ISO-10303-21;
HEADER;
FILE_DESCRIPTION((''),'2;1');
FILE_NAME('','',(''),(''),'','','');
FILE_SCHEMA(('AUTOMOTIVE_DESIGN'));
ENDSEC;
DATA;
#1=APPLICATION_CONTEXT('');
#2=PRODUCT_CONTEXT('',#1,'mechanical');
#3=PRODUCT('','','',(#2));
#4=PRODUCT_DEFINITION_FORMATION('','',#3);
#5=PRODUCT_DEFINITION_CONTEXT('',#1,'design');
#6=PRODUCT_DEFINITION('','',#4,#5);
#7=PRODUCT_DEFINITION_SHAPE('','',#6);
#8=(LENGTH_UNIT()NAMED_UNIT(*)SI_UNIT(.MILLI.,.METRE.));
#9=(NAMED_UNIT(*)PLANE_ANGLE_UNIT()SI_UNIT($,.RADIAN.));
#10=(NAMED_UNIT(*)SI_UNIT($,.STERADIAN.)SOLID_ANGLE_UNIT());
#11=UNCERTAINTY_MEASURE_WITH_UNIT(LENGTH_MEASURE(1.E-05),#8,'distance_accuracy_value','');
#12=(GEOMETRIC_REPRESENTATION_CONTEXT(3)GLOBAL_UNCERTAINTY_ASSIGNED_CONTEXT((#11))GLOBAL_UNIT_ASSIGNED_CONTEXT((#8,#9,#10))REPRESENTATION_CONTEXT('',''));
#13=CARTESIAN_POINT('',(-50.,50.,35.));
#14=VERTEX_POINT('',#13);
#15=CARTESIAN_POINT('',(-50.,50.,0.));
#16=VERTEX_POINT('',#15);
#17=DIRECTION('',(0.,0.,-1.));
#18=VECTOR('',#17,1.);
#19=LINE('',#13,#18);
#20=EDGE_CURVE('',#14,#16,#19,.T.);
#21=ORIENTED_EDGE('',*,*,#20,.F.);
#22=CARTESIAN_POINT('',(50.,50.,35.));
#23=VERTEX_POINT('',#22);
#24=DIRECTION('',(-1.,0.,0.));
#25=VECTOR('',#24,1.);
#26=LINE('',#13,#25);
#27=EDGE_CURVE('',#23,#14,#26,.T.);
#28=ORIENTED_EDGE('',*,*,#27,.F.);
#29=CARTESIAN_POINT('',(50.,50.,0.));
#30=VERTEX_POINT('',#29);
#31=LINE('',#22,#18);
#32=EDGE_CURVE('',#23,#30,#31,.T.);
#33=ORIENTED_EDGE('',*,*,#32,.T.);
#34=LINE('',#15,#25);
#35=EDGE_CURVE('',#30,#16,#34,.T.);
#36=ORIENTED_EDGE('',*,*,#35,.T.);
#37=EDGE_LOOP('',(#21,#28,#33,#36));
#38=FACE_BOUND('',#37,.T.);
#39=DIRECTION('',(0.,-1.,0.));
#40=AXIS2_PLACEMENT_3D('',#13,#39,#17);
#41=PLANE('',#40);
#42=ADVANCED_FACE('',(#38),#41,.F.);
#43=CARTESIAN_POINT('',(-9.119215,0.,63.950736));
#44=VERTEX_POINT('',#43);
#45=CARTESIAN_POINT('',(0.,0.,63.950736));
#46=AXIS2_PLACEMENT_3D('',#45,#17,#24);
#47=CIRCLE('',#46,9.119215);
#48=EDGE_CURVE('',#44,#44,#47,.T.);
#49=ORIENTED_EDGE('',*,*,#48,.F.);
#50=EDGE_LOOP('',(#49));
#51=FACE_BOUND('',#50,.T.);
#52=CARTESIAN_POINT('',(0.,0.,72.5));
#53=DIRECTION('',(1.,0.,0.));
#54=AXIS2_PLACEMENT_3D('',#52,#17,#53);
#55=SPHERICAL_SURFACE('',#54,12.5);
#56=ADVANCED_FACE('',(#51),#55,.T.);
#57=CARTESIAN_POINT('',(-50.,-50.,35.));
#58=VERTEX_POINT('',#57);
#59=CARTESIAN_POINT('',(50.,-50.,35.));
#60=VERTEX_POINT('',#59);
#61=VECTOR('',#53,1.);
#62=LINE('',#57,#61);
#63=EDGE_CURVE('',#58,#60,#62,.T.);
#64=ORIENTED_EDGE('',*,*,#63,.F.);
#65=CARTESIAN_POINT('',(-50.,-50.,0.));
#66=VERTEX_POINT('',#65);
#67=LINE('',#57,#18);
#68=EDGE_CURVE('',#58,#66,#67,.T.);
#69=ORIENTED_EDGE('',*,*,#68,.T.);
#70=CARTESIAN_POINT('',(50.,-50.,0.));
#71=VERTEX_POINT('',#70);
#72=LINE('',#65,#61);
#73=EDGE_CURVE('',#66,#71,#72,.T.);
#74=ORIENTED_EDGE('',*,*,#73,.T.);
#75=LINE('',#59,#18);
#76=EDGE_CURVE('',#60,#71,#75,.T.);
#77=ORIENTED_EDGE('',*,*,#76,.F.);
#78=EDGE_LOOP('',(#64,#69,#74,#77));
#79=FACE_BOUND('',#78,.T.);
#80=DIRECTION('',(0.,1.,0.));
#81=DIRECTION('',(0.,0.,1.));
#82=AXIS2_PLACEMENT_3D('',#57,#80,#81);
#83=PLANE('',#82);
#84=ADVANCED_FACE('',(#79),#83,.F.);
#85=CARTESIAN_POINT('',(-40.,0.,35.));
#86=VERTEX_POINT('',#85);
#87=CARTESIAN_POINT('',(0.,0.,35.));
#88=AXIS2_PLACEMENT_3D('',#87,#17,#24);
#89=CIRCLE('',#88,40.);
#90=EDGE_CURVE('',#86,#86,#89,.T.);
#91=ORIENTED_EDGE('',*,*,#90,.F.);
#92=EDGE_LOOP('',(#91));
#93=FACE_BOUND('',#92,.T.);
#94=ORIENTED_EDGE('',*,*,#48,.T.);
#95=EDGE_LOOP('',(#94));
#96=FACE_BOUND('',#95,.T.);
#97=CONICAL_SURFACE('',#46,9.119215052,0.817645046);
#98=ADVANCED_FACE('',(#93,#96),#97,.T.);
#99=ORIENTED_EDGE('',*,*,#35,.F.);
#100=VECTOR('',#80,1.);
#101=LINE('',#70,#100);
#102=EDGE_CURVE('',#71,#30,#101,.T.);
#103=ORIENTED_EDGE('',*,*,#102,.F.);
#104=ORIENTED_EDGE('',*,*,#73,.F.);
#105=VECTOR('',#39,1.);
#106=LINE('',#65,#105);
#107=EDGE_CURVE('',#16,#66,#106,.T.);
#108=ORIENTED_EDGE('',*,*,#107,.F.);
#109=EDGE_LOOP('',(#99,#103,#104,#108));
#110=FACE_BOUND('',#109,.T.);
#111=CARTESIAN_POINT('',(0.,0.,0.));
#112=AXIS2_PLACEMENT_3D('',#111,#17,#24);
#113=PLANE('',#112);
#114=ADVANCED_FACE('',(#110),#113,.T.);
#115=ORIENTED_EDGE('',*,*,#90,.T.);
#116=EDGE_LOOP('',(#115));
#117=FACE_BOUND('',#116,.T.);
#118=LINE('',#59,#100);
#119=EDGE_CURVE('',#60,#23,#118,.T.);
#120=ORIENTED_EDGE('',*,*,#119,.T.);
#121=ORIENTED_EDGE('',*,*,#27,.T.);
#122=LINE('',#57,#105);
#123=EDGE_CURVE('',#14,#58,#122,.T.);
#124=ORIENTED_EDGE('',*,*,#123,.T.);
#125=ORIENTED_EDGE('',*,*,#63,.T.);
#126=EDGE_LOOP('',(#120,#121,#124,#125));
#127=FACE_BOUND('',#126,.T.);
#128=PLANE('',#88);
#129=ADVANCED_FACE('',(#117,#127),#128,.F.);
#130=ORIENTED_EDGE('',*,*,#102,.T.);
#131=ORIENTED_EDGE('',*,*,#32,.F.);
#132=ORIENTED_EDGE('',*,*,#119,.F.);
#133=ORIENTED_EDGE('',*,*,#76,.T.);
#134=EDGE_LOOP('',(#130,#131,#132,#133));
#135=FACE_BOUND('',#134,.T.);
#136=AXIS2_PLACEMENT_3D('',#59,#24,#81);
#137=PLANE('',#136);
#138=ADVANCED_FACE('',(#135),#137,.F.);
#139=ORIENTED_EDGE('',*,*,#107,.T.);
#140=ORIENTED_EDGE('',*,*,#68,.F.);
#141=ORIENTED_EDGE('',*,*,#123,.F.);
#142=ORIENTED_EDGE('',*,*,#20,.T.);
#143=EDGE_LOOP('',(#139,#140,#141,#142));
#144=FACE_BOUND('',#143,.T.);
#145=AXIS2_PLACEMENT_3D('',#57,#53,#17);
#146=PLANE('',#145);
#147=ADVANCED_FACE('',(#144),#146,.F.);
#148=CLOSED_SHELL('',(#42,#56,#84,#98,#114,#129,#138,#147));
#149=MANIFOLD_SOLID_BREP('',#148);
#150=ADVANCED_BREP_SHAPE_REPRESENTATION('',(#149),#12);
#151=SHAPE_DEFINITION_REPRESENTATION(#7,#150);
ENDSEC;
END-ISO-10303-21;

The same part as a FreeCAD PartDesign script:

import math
import FreeCAD as App
import Part
import Sketcher

V = App.Vector


def add_polygon(sketch, points):
    """Adds a closed chain of lines whose ends are joined by coincident constraints."""
    first, n = sketch.GeometryCount, len(points)
    for a, b in zip(points, points[1:] + points[:1]):
        sketch.addGeometry(Part.LineSegment(App.Vector(*a, 0), App.Vector(*b, 0)), False)
    for i in range(n):
        sketch.addConstraint(Sketcher.Constraint("Coincident", first + i, 2, first + (i + 1) % n, 1))

doc = App.newDocument("Part")
params = doc.addObject("Spreadsheet::Sheet", "Params")
for row, (alias, value) in enumerate([
    ("sketch1_width", "100 mm"),
    ("pad1_length", "35 mm"),
    ("sketch2_radius", "12.5 mm"),
    ("sketch2_width", "40 mm"),
    ("sketch2_height", "50 mm"),
    ("revolution_angle", "360 deg"),
], start=1):
    params.set(f"A{row}", alias)
    params.set(f"B{row}", "=" + value)
    params.setAlias(f"B{row}", alias)

body = doc.addObject("PartDesign::Body", "Body")

# Sketch on XY plane
sketch1 = body.newObject("Sketcher::SketchObject", "Sketch")
sketch1.AttachmentSupport = (doc.getObject("XY_Plane"), [""])
sketch1.MapMode = "FlatFace"
add_polygon(sketch1, [(-50, 50), (-50, -50), (50, -50), (50, 50)])  # lines 0-3
sketch1.addConstraint(Sketcher.Constraint("Vertical", 0))
sketch1.addConstraint(Sketcher.Constraint("Horizontal", 1))
sketch1.addConstraint(Sketcher.Constraint("Vertical", 2))
sketch1.addConstraint(Sketcher.Constraint("Horizontal", 3))
sketch1.addConstraint(Sketcher.Constraint("Symmetric", 0, 2, 2, 2, -1, 1))
sketch1.addConstraint(Sketcher.Constraint("Equal", 3, 0))
sketch1.addConstraint(Sketcher.Constraint("DistanceX", 1, 1, 1, 2, 100.0))
sketch1.setExpression("Constraints[10]", "Params.sketch1_width")
pad1 = body.newObject("PartDesign::Pad", "Pad")
pad1.Profile = sketch1
pad1.setExpression("Length", "Params.pad1_length")

# Sketch on XZ plane
sketch2 = body.newObject("Sketcher::SketchObject", "Sketch001")
sketch2.AttachmentSupport = (doc.getObject("XZ_Plane"), [""])
sketch2.MapMode = "FlatFace"
sketch2.addGeometry(Part.LineSegment(V(0, 35, 0), V(0, 85, 0)), False)
sketch2.addGeometry(Part.ArcOfCircle(Part.Circle(V(0, 72, 0), V(0, 0, 1), 12), math.radians(-43), math.radians(90)), False)
sketch2.addGeometry(Part.LineSegment(V(9, 64, 0), V(40, 35, 0)), False)
sketch2.addGeometry(Part.LineSegment(V(40, 35, 0), V(0, 35, 0)), False)
sketch2.addConstraint(Sketcher.Constraint("Coincident", 0, 2, 1, 2))
sketch2.addConstraint(Sketcher.Constraint("Coincident", 1, 1, 2, 1))
sketch2.addConstraint(Sketcher.Constraint("Coincident", 2, 2, 3, 1))
sketch2.addConstraint(Sketcher.Constraint("Coincident", 3, 2, 0, 1))
sketch2.addConstraint(Sketcher.Constraint("Vertical", 0))
sketch2.addConstraint(Sketcher.Constraint("Horizontal", 3))
sketch2.addConstraint(Sketcher.Constraint("PointOnObject", 1, 3, -2))
sketch2.addConstraint(Sketcher.Constraint("PointOnObject", 0, 2, -2))
sketch2.addConstraint(Sketcher.Constraint("Radius", 1, 12.5))
sketch2.addConstraint(Sketcher.Constraint("DistanceX", 3, 2, 3, 1, 40.0))
sketch2.addConstraint(Sketcher.Constraint("DistanceY", 0, 1, 0, 2, 50.0))
sketch2.addConstraint(Sketcher.Constraint("DistanceY", -1, 1, 0, 2, 85.0))
sketch2.addConstraint(Sketcher.Constraint("DistanceX", -1, 1, 1, 1, 9.119215))
sketch2.setExpression("Constraints[8]", "Params.sketch2_radius")
sketch2.setExpression("Constraints[9]", "Params.sketch2_width")
sketch2.setExpression("Constraints[10]", "Params.sketch2_height")
revolution = body.newObject("PartDesign::Revolution", "Revolution")
revolution.Profile = sketch2
revolution.ReferenceAxis = (sketch2, ["V_Axis"])
revolution.setExpression("Angle", "Params.revolution_angle")

doc.recompute()
